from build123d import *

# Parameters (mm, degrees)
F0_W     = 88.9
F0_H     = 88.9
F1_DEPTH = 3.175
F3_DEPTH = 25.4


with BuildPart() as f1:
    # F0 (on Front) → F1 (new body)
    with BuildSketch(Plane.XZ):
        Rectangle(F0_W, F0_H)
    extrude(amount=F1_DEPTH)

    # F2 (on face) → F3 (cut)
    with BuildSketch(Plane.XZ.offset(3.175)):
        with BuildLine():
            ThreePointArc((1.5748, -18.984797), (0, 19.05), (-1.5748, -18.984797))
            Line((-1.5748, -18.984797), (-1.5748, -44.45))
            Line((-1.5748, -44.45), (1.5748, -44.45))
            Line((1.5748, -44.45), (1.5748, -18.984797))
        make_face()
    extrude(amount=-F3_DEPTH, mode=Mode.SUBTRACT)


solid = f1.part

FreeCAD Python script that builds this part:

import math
import FreeCAD as App
import Part
import Sketcher
Q = App.Units.Quantity

doc = App.newDocument("Part")
params = doc.addObject("Spreadsheet::Sheet", "Params")
for row, (alias, value) in enumerate([
    ("sketch1_width", "3.5 in"),
    ("pad1_length", "0.125 in"),
    ("sketch2_radius", "0.75 in"),
    ("sketch2_width", "0.124 in"),
    ("pocket1_length", "1 in"),
], start=1):
    params.set(f"A{row}", alias)
    params.set(f"B{row}", "=" + value)
    params.setAlias(f"B{row}", alias)

body = doc.addObject("PartDesign::Body", "Body")

sketch1 = body.newObject("Sketcher::SketchObject", "Sketch")
sketch1.AttachmentSupport = (doc.getObject("XZ_Plane"), [""])
sketch1.MapMode = "FlatFace"
sketch1.addGeometry(Part.LineSegment(App.Vector(-44, 44, 0), App.Vector(-44, -44, 0)), False)
sketch1.addGeometry(Part.LineSegment(App.Vector(-44, -44, 0), App.Vector(44, -44, 0)), False)
sketch1.addGeometry(Part.LineSegment(App.Vector(44, -44, 0), App.Vector(44, 44, 0)), False)
sketch1.addGeometry(Part.LineSegment(App.Vector(44, 44, 0), App.Vector(-44, 44, 0)), False)
sketch1.addConstraint(Sketcher.Constraint("Coincident", 0, 2, 1, 1))
sketch1.addConstraint(Sketcher.Constraint("Coincident", 1, 2, 2, 1))
sketch1.addConstraint(Sketcher.Constraint("Coincident", 2, 2, 3, 1))
sketch1.addConstraint(Sketcher.Constraint("Coincident", 3, 2, 0, 1))
sketch1.addConstraint(Sketcher.Constraint("Vertical", 0))
sketch1.addConstraint(Sketcher.Constraint("Horizontal", 1))
sketch1.addConstraint(Sketcher.Constraint("Vertical", 2))
sketch1.addConstraint(Sketcher.Constraint("Horizontal", 3))
sketch1.addConstraint(Sketcher.Constraint("Symmetric", 0, 2, 2, 2, -1, 1))
sketch1.addConstraint(Sketcher.Constraint("Equal", 3, 0))
sketch1.addConstraint(Sketcher.Constraint("DistanceX", 1, 1, 1, 2, Q("3.5 in")))
sketch1.setExpression("Constraints[10]", "Params.sketch1_width")
pad1 = body.newObject("PartDesign::Pad", "Pad")
pad1.Profile = sketch1
pad1.setExpression("Length", "Params.pad1_length")

sketch2 = body.newObject("Sketcher::SketchObject", "Sketch001")
sketch2.AttachmentSupport = (doc.getObject("XZ_Plane"), [""])
sketch2.MapMode = "FlatFace"
sketch2.AttachmentOffset = App.Placement(App.Vector(0, 0, 0.125 * 25.4), App.Rotation())
sketch2.addGeometry(Part.ArcOfCircle(Part.Circle(App.Vector(0, 0, 0), App.Vector(0, 0, 1), 19.1), math.radians(-85), math.radians(265)), False)
sketch2.addGeometry(Part.LineSegment(App.Vector(-1.6, -19, 0), App.Vector(-1.6, -44.5, 0)), False)
sketch2.addGeometry(Part.LineSegment(App.Vector(-1.6, -44.5, 0), App.Vector(1.6, -44.5, 0)), False)
sketch2.addGeometry(Part.LineSegment(App.Vector(1.6, -44.5, 0), App.Vector(1.6, -19, 0)), False)
sketch2.addConstraint(Sketcher.Constraint("Coincident", 0, 2, 1, 1))
sketch2.addConstraint(Sketcher.Constraint("Coincident", 1, 2, 2, 1))
sketch2.addConstraint(Sketcher.Constraint("Coincident", 2, 2, 3, 1))
sketch2.addConstraint(Sketcher.Constraint("Coincident", 3, 2, 0, 1))
sketch2.addConstraint(Sketcher.Constraint("Vertical", 1))
sketch2.addConstraint(Sketcher.Constraint("Horizontal", 2))
sketch2.addConstraint(Sketcher.Constraint("Vertical", 3))
sketch2.addConstraint(Sketcher.Constraint("Coincident", 0, 3, -1, 1))
sketch2.addConstraint(Sketcher.Constraint("Horizontal", 0, 2, 3, 2))
sketch2.addConstraint(Sketcher.Constraint("Radius", 0, Q("0.75 in")))
sketch2.addConstraint(Sketcher.Constraint("DistanceX", 2, 1, 2, 2, Q("0.124 in")))
sketch2.addConstraint(Sketcher.Constraint("DistanceY", 1, 2, -1, 1, Q("1.75 in")))
sketch2.setExpression("Constraints[9]", "Params.sketch2_radius")
sketch2.setExpression("Constraints[10]", "Params.sketch2_width")
pocket1 = body.newObject("PartDesign::Pocket", "Pocket")
pocket1.Profile = sketch2
pocket1.setExpression("Length", "Params.pocket1_length")

doc.recompute()
